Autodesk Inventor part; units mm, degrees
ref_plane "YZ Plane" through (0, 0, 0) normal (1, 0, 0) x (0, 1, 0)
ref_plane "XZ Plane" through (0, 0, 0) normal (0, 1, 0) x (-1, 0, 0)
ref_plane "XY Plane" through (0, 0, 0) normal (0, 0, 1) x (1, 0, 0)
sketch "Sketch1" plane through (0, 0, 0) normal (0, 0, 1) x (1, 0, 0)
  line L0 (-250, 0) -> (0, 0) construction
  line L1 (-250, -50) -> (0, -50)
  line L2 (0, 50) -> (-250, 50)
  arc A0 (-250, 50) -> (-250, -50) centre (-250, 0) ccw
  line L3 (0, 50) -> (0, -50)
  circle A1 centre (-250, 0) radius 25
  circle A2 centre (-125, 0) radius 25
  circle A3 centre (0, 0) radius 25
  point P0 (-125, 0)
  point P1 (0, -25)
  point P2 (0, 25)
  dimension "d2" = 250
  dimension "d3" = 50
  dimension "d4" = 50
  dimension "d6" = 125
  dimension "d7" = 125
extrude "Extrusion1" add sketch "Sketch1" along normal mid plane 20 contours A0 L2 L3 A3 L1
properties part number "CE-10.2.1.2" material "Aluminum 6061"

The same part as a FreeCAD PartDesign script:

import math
import FreeCAD as App
import Part
import Sketcher
from FreeCAD import Vector

doc = App.newDocument("Part")
body = doc.addObject("PartDesign::Body", "Body")

sketch1 = body.newObject("Sketcher::SketchObject", "Sketch")
sketch1.AttachmentSupport = (doc.getObject("XY_Plane"), [""])
sketch1.MapMode = "FlatFace"
sketch1.addGeometry(Part.ArcOfCircle(Part.Circle(Vector(-250, 0, 0), Vector(0, 0, 1), 50), math.radians(90), math.radians(270)), False)
sketch1.addGeometry(Part.LineSegment(Vector(-250, -50, 0), Vector(0, -50, 0)), False)
sketch1.addGeometry(Part.LineSegment(Vector(0, -50, 0), Vector(0, -25, 0)), False)
sketch1.addGeometry(Part.ArcOfCircle(Part.Circle(Vector(0, 0, 0), Vector(0, 0, 1), 25), math.radians(90), math.radians(270)), False)
sketch1.addGeometry(Part.LineSegment(Vector(0, 25, 0), Vector(0, 50, 0)), False)
sketch1.addGeometry(Part.LineSegment(Vector(0, 50, 0), Vector(-250, 50, 0)), False)
sketch1.addGeometry(Part.Circle(Vector(-250, 0, 0), Vector(0, 0, 1), 25), False)
sketch1.addGeometry(Part.Circle(Vector(-125, 0, 0), Vector(0, 0, 1), 25), False)
sketch1.addConstraint(Sketcher.Constraint("Tangent", 0, 2, 1, 1))
sketch1.addConstraint(Sketcher.Constraint("Coincident", 1, 2, 2, 1))
sketch1.addConstraint(Sketcher.Constraint("Coincident", 2, 2, 3, 2))
sketch1.addConstraint(Sketcher.Constraint("Coincident", 3, 1, 4, 1))
sketch1.addConstraint(Sketcher.Constraint("Coincident", 4, 2, 5, 1))
sketch1.addConstraint(Sketcher.Constraint("Tangent", 5, 2, 0, 1))
sketch1.addConstraint(Sketcher.Constraint("Horizontal", 1))
sketch1.addConstraint(Sketcher.Constraint("Vertical", 2))
sketch1.addConstraint(Sketcher.Constraint("Vertical", 4))
sketch1.addConstraint(Sketcher.Constraint("Horizontal", 5))
sketch1.addConstraint(Sketcher.Constraint("Coincident", 3, 3, -1, 1))
sketch1.addConstraint(Sketcher.Constraint("Coincident", 6, 3, 0, 3))
sketch1.addConstraint(Sketcher.Constraint("Equal", 3, 6))
sketch1.addConstraint(Sketcher.Constraint("Equal", 6, 7))
sketch1.addConstraint(Sketcher.Constraint("Symmetric", 1, 2, 4, 2, -1, 1))
sketch1.addConstraint(Sketcher.Constraint("PointOnObject", 7, 3, -1))
sketch1.addConstraint(Sketcher.Constraint("PointOnObject", 1, 2, -2))
sketch1.addConstraint(Sketcher.Constraint("Diameter", 6, 50.0))
sketch1.addConstraint(Sketcher.Constraint("Radius", 0, 50.0))
sketch1.addConstraint(Sketcher.Constraint("DistanceX", 1, 1, 1, 2, 250.0))
sketch1.addConstraint(Sketcher.Constraint("DistanceX", 7, 3, -1, 1, 125.0))
pad1 = body.newObject("PartDesign::Pad", "Pad")
pad1.Profile = sketch1
pad1.Length = 20
pad1.Midplane = True

doc.recompute()
